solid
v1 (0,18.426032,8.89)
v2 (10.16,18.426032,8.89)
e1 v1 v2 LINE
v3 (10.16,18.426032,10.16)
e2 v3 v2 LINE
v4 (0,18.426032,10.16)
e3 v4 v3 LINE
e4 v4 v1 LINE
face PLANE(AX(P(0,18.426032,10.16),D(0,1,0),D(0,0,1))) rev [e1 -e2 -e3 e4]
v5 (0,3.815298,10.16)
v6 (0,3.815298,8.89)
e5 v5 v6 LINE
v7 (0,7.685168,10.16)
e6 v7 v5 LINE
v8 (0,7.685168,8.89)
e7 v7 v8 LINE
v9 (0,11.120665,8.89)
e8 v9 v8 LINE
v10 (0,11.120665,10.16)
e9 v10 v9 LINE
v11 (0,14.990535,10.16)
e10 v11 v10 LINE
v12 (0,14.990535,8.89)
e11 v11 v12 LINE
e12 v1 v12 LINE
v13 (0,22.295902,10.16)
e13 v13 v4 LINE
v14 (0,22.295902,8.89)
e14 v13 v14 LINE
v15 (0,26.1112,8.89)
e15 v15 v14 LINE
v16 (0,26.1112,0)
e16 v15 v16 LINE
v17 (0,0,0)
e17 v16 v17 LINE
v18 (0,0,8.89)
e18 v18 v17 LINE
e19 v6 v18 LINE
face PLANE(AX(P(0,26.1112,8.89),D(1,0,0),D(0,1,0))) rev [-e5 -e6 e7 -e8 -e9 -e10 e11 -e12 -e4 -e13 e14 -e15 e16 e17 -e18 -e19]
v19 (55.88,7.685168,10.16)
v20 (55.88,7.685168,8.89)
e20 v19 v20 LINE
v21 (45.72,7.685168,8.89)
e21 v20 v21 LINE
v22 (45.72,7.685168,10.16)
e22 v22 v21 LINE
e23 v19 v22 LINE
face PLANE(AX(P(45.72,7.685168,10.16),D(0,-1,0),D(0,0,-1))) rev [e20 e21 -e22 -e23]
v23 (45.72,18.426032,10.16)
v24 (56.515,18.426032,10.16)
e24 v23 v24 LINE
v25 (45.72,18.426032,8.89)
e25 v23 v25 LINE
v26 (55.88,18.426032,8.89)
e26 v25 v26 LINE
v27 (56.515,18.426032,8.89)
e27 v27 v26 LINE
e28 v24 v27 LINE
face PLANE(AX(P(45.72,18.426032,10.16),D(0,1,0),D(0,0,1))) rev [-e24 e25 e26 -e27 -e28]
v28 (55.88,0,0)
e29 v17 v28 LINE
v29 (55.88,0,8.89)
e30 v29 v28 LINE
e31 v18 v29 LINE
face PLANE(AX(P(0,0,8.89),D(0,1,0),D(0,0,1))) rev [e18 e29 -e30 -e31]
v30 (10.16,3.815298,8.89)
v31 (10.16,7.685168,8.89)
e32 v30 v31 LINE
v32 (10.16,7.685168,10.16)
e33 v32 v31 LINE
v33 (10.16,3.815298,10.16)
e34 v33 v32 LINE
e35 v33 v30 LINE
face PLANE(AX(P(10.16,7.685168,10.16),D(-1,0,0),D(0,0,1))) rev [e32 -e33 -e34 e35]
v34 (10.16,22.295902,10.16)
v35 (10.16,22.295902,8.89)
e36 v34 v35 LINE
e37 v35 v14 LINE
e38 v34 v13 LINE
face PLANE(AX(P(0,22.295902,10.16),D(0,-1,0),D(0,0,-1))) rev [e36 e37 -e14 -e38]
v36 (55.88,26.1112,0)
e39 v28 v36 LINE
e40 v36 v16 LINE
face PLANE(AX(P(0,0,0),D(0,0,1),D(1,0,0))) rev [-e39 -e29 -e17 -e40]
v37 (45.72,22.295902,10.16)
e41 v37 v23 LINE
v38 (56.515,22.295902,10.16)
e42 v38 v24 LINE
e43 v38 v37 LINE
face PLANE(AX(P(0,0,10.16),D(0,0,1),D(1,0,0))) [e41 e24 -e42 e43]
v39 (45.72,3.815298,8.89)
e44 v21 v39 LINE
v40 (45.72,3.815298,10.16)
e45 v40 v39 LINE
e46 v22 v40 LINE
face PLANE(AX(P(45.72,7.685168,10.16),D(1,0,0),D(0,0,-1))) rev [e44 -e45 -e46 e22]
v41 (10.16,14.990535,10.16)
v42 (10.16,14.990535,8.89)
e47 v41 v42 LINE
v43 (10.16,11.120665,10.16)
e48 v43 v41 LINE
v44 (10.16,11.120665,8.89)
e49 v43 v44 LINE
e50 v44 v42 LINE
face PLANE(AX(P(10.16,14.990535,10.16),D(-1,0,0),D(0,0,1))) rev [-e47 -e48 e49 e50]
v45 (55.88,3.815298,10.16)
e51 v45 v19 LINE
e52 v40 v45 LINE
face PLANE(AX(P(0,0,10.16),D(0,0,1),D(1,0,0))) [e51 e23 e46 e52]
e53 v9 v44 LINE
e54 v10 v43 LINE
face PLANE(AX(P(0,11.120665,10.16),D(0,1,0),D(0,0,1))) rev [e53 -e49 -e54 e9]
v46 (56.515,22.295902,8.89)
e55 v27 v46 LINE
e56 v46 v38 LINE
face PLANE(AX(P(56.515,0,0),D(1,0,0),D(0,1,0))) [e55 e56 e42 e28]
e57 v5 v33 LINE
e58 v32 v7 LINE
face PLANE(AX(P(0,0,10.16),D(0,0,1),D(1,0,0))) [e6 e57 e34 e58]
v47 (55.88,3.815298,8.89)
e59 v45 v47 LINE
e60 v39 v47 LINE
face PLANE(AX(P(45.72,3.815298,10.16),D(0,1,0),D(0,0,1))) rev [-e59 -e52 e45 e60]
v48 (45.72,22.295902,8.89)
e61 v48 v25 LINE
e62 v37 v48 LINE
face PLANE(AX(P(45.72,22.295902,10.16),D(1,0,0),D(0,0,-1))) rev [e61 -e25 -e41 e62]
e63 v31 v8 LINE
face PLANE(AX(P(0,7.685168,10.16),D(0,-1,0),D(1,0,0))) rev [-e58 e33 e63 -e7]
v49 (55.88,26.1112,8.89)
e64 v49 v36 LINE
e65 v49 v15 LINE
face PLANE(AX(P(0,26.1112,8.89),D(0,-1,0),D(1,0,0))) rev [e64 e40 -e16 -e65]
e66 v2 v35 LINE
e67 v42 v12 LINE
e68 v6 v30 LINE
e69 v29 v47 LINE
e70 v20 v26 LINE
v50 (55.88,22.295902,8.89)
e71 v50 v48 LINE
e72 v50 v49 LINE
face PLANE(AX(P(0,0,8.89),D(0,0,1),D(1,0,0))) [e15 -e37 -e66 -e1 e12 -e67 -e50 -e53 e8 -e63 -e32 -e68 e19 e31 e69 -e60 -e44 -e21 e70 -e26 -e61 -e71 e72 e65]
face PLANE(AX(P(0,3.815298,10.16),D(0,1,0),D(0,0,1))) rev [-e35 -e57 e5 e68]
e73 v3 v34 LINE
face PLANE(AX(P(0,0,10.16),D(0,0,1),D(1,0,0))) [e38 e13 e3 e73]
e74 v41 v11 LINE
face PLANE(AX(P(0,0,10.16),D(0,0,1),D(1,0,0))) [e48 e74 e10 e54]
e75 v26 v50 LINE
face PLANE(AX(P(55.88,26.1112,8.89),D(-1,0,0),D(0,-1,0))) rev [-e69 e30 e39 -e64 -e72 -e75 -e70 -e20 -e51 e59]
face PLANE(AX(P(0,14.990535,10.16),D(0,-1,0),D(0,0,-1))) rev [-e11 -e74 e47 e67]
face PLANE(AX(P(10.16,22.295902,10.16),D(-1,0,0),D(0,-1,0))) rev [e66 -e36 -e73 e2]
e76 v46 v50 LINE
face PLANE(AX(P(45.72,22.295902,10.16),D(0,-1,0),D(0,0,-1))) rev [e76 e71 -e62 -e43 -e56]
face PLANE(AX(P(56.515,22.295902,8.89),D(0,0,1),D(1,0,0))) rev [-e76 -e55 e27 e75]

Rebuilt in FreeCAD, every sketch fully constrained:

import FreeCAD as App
import Part
import Sketcher
Q = App.Units.Quantity


def add_polygon(sketch, points):
    """Adds a closed chain of lines whose ends are joined by coincident constraints."""
    first, n = sketch.GeometryCount, len(points)
    for a, b in zip(points, points[1:] + points[:1]):
        sketch.addGeometry(Part.LineSegment(App.Vector(*a, 0), App.Vector(*b, 0)), False)
    for i in range(n):
        sketch.addConstraint(Sketcher.Constraint("Coincident", first + i, 2, first + (i + 1) % n, 1))

doc = App.newDocument("Part")
params = doc.addObject("Spreadsheet::Sheet", "Params")
for row, (alias, value) in enumerate([
    ("sketch1_width", "2.2 in"),
    ("sketch1_height", "1.028 in"),
    ("pad1_length", "0.35 in"),
    ("sketch2_width", "0.4 in"),
    ("pad2_length", "0.05 in"),
    ("sketch3_height", "0.05 in"),
    ("pad3_length", "0.025 in"),
], start=1):
    params.set(f"A{row}", alias)
    params.set(f"B{row}", "=" + value)
    params.setAlias(f"B{row}", alias)

body = doc.addObject("PartDesign::Body", "Body")

sketch1 = body.newObject("Sketcher::SketchObject", "Sketch")
sketch1.AttachmentSupport = (doc.getObject("XY_Plane"), [""])
sketch1.MapMode = "FlatFace"
add_polygon(sketch1, [(0, 26.1112), (0, 0), (55.88, 0), (55.88, 26.1112)])
sketch1.addConstraint([
    Sketcher.Constraint("Vertical", 0),
    Sketcher.Constraint("Horizontal", 1),
    Sketcher.Constraint("Vertical", 2),
    Sketcher.Constraint("Horizontal", 3),
    Sketcher.Constraint("Coincident", 0, 2, -1, 1),
    Sketcher.Constraint("DistanceX", 1, 1, 1, 2, Q("2.2 in")),
    Sketcher.Constraint("DistanceY", 0, 2, 0, 1, Q("1.028 in")),
])
sketch1.setExpression("Constraints[9]", "Params.sketch1_width")
sketch1.setExpression("Constraints[10]", "Params.sketch1_height")
pad1 = body.newObject("PartDesign::Pad", "Pad")
pad1.Profile = sketch1
pad1.setExpression("Length", "Params.pad1_length")

sketch2 = body.newObject("Sketcher::SketchObject", "Sketch001")
sketch2.AttachmentSupport = (doc.getObject("XY_Plane"), [""])
sketch2.MapMode = "FlatFace"
sketch2.AttachmentOffset = App.Placement(App.Vector(0, 0, 0.35 * 25.4), App.Rotation())
add_polygon(sketch2, [(0, 7.685168), (0, 3.815298), (10.16, 3.815298), (10.16, 7.685168)])
add_polygon(sketch2, [(0, 14.990535), (0, 11.120665), (10.16, 11.120665), (10.16, 14.990535)])
add_polygon(sketch2, [(0, 22.295902), (0, 18.426032), (10.16, 18.426032), (10.16, 22.295902)])
add_polygon(sketch2, [(45.72, 7.685168), (45.72, 3.815298), (55.88, 3.815298), (55.88, 7.685168)])
add_polygon(sketch2, [(45.72, 22.295902), (45.72, 18.426032), (55.88, 18.426032), (55.88, 22.295902)])
sketch2.addConstraint([
    Sketcher.Constraint("Vertical", 0),
    Sketcher.Constraint("Horizontal", 1),
    Sketcher.Constraint("Vertical", 2),
    Sketcher.Constraint("Horizontal", 3),
    Sketcher.Constraint("Vertical", 4),
    Sketcher.Constraint("Horizontal", 5),
    Sketcher.Constraint("Vertical", 6),
    Sketcher.Constraint("Horizontal", 7),
    Sketcher.Constraint("Vertical", 8),
    Sketcher.Constraint("Horizontal", 9),
    Sketcher.Constraint("Vertical", 10),
    Sketcher.Constraint("Horizontal", 11),
    Sketcher.Constraint("Vertical", 12),
    Sketcher.Constraint("Horizontal", 13),
    Sketcher.Constraint("Vertical", 14),
    Sketcher.Constraint("Horizontal", 15),
    Sketcher.Constraint("Vertical", 16),
    Sketcher.Constraint("Horizontal", 17),
    Sketcher.Constraint("Vertical", 18),
    Sketcher.Constraint("Horizontal", 19),
    Sketcher.Constraint("PointOnObject", 0, 2, -2),
    Sketcher.Constraint("PointOnObject", 4, 2, -2),
    Sketcher.Constraint("PointOnObject", 8, 2, -2),
    Sketcher.Constraint("Horizontal", 1, 2, 12, 2),
    Sketcher.Constraint("Horizontal", 3, 2, 14, 2),
    Sketcher.Constraint("Horizontal", 9, 2, 16, 2),
    Sketcher.Constraint("Horizontal", 11, 2, 18, 2),
    Sketcher.Constraint("Vertical", 2, 2, 5, 2),
    Sketcher.Constraint("Vertical", 6, 2, 9, 2),
    Sketcher.Constraint("Vertical", 15, 2, 16, 2),
    Sketcher.Constraint("Vertical", 14, 2, 17, 2),
    Sketcher.Constraint("Equal", 11, 13),
    Sketcher.Constraint("Equal", 2, 4),
    Sketcher.Constraint("Equal", 6, 8),
    Sketcher.Constraint("DistanceX", 1, 1, 1, 2, Q("0.4 in")),
    Sketcher.Constraint("DistanceX", -1, 1, 12, 2, Q("1.8 in")),
    Sketcher.Constraint("DistanceY", 0, 2, 0, 1, 3.86987),
    Sketcher.Constraint("DistanceY", -1, 1, 0, 2, 3.815298),
    Sketcher.Constraint("DistanceY", -1, 1, 4, 2, 11.120665),
    Sketcher.Constraint("DistanceY", -1, 1, 8, 2, 18.426032),
])
sketch2.setExpression("Constraints[54]", "Params.sketch2_width")
pad2 = body.newObject("PartDesign::Pad", "Pad001")
pad2.Profile = sketch2
pad2.setExpression("Length", "Params.pad2_length")

sketch3 = body.newObject("Sketcher::SketchObject", "Sketch002")
sketch3.AttachmentSupport = (doc.getObject("YZ_Plane"), [""])
sketch3.MapMode = "FlatFace"
sketch3.AttachmentOffset = App.Placement(App.Vector(0, 0, 2.2 * 25.4), App.Rotation())
add_polygon(sketch3, [(22.295902, 10.16), (18.426032, 10.16), (18.426032, 8.89), (22.295902, 8.89)])
sketch3.addConstraint([
    Sketcher.Constraint("Horizontal", 0),
    Sketcher.Constraint("Vertical", 1),
    Sketcher.Constraint("Horizontal", 2),
    Sketcher.Constraint("Vertical", 3),
    Sketcher.Constraint("DistanceY", 1, 2, 1, 1, Q("0.05 in")),
    Sketcher.Constraint("DistanceY", -1, 1, 0, 2, Q("0.4 in")),
    Sketcher.Constraint("DistanceX", 0, 2, 0, 1, 3.86987),
    Sketcher.Constraint("DistanceX", -1, 1, 0, 2, 18.426032),
])
sketch3.setExpression("Constraints[8]", "Params.sketch3_height")
pad3 = body.newObject("PartDesign::Pad", "Pad002")
pad3.Profile = sketch3
pad3.setExpression("Length", "Params.pad3_length")

doc.recompute()
